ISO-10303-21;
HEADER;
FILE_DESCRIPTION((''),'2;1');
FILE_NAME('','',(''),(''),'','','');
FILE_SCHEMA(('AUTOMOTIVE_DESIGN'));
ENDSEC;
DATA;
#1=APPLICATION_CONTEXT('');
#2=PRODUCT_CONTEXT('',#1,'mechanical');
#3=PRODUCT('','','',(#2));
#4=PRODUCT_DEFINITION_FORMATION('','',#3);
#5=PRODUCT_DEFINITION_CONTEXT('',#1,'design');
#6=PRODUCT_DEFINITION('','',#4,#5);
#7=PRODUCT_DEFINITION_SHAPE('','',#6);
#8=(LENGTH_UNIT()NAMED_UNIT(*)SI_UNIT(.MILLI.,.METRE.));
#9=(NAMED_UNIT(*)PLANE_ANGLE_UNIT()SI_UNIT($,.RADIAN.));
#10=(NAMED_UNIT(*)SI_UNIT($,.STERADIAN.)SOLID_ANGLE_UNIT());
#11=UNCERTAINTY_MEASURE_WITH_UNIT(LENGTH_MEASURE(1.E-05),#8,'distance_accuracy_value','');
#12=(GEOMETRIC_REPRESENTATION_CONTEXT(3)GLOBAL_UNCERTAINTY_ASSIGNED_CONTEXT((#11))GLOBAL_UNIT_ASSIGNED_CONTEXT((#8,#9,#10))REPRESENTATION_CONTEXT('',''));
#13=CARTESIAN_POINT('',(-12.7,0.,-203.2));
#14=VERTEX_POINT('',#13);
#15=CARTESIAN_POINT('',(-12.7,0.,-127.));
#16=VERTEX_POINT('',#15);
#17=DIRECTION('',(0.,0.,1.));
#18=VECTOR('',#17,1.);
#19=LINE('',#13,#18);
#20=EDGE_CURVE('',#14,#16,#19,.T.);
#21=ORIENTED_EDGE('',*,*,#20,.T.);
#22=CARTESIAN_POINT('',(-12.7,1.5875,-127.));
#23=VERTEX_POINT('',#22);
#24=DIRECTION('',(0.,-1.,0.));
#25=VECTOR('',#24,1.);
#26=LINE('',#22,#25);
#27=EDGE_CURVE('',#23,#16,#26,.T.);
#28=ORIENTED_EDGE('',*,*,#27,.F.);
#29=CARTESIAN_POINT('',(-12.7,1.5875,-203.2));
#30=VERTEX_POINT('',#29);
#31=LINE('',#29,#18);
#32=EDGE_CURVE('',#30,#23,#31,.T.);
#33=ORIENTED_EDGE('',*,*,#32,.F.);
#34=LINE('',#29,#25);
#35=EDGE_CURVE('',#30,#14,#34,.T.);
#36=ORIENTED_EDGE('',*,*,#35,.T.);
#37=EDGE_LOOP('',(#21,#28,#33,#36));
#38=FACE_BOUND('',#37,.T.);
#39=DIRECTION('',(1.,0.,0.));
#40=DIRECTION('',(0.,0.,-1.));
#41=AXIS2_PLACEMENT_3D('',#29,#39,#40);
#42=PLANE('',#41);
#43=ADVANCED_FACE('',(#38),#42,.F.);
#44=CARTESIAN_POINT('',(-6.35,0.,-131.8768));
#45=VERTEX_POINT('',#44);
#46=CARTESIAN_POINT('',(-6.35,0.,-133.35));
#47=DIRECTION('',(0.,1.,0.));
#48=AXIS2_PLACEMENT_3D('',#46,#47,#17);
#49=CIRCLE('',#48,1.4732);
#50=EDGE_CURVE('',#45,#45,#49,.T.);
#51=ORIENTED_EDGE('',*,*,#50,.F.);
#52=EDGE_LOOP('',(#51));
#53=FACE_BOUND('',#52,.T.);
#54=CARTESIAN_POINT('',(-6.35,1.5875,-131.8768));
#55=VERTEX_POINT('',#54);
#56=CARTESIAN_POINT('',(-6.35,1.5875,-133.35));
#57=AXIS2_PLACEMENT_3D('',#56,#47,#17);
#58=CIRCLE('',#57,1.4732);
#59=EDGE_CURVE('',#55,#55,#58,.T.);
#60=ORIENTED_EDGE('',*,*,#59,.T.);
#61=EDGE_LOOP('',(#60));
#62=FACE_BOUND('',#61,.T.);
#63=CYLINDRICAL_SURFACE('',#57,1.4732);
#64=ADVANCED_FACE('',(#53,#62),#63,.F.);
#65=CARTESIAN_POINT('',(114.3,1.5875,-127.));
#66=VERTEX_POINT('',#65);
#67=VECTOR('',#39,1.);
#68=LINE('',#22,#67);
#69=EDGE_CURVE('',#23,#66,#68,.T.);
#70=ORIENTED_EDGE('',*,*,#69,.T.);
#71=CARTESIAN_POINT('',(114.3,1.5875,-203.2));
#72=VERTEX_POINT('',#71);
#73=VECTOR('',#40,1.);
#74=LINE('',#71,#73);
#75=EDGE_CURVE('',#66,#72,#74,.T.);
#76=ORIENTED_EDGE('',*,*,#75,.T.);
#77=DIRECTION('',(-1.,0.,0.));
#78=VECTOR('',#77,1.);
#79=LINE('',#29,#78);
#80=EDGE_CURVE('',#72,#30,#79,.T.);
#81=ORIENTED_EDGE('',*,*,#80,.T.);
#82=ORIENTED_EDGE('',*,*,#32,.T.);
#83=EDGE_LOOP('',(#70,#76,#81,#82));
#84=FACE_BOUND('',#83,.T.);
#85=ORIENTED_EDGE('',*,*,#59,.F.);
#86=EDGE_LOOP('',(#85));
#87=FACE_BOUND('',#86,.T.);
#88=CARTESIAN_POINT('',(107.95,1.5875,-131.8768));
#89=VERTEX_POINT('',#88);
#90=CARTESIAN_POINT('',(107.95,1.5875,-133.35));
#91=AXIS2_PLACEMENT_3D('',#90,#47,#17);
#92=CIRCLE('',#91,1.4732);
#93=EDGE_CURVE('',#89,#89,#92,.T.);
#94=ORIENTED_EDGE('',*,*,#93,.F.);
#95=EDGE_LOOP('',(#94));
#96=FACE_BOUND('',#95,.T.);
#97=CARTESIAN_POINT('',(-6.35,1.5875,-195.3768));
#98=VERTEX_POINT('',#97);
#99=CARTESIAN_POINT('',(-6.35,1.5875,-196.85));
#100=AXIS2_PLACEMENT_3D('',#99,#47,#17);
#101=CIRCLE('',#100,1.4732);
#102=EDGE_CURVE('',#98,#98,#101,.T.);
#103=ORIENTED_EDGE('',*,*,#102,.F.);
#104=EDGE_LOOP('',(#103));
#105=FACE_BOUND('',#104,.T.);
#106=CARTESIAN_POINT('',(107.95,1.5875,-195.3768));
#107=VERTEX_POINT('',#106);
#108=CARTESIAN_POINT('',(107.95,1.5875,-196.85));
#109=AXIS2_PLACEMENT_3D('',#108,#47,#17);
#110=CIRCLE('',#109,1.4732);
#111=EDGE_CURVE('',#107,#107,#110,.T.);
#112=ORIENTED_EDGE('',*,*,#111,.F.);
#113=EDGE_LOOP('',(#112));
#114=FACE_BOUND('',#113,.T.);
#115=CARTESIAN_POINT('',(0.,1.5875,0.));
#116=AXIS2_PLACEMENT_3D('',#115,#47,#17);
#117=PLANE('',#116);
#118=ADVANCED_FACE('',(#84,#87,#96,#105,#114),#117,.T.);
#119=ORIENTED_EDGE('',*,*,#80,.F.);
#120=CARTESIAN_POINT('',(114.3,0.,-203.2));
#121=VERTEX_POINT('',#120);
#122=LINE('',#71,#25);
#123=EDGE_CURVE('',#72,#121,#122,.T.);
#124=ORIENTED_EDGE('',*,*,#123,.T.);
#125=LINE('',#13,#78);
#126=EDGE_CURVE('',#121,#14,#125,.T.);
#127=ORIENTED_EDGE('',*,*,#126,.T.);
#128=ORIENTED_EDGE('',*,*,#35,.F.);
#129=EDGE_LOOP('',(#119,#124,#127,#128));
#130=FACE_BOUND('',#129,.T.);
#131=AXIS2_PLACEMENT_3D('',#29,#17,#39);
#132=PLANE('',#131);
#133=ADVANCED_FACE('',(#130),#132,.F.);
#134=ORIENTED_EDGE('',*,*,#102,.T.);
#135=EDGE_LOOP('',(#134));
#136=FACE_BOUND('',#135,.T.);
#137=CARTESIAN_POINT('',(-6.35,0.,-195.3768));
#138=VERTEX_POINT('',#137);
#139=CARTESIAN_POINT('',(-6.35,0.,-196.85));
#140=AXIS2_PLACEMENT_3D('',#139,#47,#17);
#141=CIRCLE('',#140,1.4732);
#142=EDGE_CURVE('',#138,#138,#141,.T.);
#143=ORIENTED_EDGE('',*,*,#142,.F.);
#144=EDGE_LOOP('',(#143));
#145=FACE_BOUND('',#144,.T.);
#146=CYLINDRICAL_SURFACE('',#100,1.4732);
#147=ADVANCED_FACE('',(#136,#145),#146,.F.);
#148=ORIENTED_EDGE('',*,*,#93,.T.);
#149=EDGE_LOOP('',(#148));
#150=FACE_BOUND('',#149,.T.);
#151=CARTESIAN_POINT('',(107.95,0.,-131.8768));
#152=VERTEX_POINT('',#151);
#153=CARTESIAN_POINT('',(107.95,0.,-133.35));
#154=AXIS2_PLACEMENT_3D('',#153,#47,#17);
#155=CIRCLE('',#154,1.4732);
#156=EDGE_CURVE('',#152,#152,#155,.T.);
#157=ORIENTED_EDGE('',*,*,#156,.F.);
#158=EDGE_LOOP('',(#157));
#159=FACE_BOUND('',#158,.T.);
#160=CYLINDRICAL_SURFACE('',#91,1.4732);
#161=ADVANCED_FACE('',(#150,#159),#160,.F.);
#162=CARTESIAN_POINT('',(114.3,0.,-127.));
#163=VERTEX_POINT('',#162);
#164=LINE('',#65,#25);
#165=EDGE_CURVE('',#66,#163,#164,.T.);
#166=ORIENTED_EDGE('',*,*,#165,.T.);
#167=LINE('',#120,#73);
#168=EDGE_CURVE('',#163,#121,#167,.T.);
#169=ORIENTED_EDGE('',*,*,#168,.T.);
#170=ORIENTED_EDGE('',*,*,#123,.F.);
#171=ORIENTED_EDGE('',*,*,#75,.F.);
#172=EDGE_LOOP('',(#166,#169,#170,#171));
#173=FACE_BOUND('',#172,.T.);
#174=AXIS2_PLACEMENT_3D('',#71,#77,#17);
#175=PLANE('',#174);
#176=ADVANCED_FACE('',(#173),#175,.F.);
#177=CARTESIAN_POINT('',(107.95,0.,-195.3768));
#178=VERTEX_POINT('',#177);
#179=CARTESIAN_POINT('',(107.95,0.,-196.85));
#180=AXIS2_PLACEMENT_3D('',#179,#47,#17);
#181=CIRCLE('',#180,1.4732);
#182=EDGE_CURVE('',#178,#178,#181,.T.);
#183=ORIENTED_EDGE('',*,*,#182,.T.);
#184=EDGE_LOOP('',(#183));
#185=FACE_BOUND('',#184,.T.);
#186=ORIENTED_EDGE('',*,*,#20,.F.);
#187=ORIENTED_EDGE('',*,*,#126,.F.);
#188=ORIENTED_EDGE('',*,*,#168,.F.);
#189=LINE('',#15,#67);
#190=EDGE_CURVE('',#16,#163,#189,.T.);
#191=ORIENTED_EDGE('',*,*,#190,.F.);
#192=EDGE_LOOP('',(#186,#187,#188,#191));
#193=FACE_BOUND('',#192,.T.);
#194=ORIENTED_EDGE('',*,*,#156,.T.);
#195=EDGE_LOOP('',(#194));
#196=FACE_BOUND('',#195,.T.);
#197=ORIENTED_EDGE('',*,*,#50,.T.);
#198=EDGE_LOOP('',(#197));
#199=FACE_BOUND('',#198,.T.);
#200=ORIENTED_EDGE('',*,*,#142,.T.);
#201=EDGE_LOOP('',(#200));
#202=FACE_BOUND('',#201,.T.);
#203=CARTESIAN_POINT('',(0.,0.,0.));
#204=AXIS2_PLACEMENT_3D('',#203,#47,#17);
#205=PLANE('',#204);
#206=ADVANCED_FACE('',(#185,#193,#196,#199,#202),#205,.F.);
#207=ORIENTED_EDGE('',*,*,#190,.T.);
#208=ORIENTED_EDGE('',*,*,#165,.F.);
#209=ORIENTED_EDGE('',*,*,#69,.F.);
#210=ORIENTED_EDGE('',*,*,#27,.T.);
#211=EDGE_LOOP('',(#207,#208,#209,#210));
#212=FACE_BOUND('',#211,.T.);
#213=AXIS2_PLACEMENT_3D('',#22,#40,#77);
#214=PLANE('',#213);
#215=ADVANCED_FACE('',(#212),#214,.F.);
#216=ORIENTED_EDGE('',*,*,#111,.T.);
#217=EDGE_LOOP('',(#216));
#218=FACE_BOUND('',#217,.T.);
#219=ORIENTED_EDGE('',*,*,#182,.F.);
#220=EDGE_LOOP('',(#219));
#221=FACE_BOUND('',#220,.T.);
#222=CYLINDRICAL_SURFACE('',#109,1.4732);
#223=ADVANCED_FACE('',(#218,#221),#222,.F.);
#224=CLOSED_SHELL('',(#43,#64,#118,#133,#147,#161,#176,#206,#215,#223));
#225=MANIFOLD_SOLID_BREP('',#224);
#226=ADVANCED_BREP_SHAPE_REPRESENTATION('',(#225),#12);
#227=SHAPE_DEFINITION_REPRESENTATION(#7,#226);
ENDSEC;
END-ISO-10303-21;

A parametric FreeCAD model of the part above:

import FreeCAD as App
import Part
import Sketcher

V = App.Vector
Q = App.Units.Quantity

doc = App.newDocument("Part")
params = doc.addObject("Spreadsheet::Sheet", "Params")
for row, (alias, value) in enumerate([
    ("sketch1_width", "5 in"),
    ("sketch1_height", "3 in"),
    ("pad1_length", "0.0625 in"),
    ("sketch2_diameter", "0.116 in"),
    ("hole_diameter", "0.116 in"),
], start=1):
    params.set(f"A{row}", alias)
    params.set(f"B{row}", "=" + value)
    params.setAlias(f"B{row}", alias)

body = doc.addObject("PartDesign::Body", "Body")

sketch1 = body.newObject("Sketcher::SketchObject", "Sketch")
sketch1.AttachmentSupport = (doc.getObject("XZ_Plane"), [""])
sketch1.MapMode = "FlatFace"
sketch1.addGeometry([
    Part.LineSegment(V(-12.7, -203.2, 0), V(-12.7, -127, 0)),
    Part.LineSegment(V(-12.7, -127, 0), V(114.3, -127, 0)),
    Part.LineSegment(V(114.3, -127, 0), V(114.3, -203.2, 0)),
    Part.LineSegment(V(114.3, -203.2, 0), V(-12.7, -203.2, 0)),
], False)
sketch1.addConstraint([
    Sketcher.Constraint("Coincident", 0, 2, 1, 1),
    Sketcher.Constraint("Coincident", 1, 2, 2, 1),
    Sketcher.Constraint("Coincident", 2, 2, 3, 1),
    Sketcher.Constraint("Coincident", 3, 2, 0, 1),
    Sketcher.Constraint("Vertical", 0),
    Sketcher.Constraint("Horizontal", 1),
    Sketcher.Constraint("Vertical", 2),
    Sketcher.Constraint("Horizontal", 3),
    Sketcher.Constraint("DistanceX", 1, 1, 1, 2, Q("5 in")),
    Sketcher.Constraint("DistanceY", 0, 1, 0, 2, Q("3 in")),
    Sketcher.Constraint("DistanceY", 0, 2, -1, 1, Q("5 in")),
    Sketcher.Constraint("DistanceX", 0, 2, -1, 1, Q("0.5 in")),
])
sketch1.setExpression("Constraints[8]", "Params.sketch1_width")
sketch1.setExpression("Constraints[9]", "Params.sketch1_height")
pad1 = body.newObject("PartDesign::Pad", "Pad")
pad1.Profile = sketch1
pad1.setExpression("Length", "Params.pad1_length")
pad1.Reversed = True

sketch2 = body.newObject("Sketcher::SketchObject", "Sketch001")
sketch2.AttachmentSupport = (doc.getObject("XZ_Plane"), [""])
sketch2.MapMode = "FlatFace"
sketch2.AttachmentOffset = App.Placement(V(0, 0, -0.0625 * 25.4), App.Rotation())
sketch2.addGeometry([
    Part.Circle(V(-6.35, -196.85, 0), V(0, 0, 1), 1.4732),
    Part.Circle(V(-6.35, -133.35, 0), V(0, 0, 1), 1.4732),
    Part.Circle(V(107.95, -133.35, 0), V(0, 0, 1), 1.4732),
    Part.Circle(V(107.95, -196.85, 0), V(0, 0, 1), 1.4732),
], False)
sketch2.addConstraint([
    Sketcher.Constraint("Equal", 0, 1),
    Sketcher.Constraint("Equal", 1, 2),
    Sketcher.Constraint("Equal", 2, 3),
    Sketcher.Constraint("Horizontal", 1, 3, 2, 3),
    Sketcher.Constraint("Horizontal", 0, 3, 3, 3),
    Sketcher.Constraint("Vertical", 0, 3, 1, 3),
    Sketcher.Constraint("Vertical", 2, 3, 3, 3),
    Sketcher.Constraint("Diameter", 0, Q("0.116 in")),
    Sketcher.Constraint("DistanceY", 0, 3, 1, 3, Q("2.5 in")),
    Sketcher.Constraint("DistanceX", 1, 3, 2, 3, Q("4.5 in")),
    Sketcher.Constraint("DistanceX", 0, 3, -1, 1, Q("0.25 in")),
    Sketcher.Constraint("DistanceY", 0, 3, -1, 1, Q("7.75 in")),
])
sketch2.setExpression("Constraints[7]", "Params.sketch2_diameter")
doc.recompute()
hole = body.newObject("PartDesign::Hole", "Hole")
hole.Profile = sketch2
hole.ThreadType = "None"
hole.setExpression("Diameter", "Params.hole_diameter")
hole.DepthType = "ThroughAll"
hole.Reversed = True

doc.recompute()
